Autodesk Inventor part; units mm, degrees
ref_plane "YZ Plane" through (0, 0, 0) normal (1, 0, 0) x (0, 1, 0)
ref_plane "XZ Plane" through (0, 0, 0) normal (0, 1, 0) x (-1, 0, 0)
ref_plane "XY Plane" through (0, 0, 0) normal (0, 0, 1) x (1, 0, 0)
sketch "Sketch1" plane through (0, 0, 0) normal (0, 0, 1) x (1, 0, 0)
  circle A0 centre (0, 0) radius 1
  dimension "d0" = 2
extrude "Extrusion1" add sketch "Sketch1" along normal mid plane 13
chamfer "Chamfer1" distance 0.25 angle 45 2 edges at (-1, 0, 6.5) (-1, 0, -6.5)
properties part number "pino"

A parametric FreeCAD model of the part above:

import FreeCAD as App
import Part
import Sketcher

V = App.Vector
Q = App.Units.Quantity


def edges_at(feature, points):
    """Names of the edges that pass closest to the given points."""
    edges = feature.Shape.Edges
    near = lambda p: min(range(len(edges)), key=lambda i: edges[i].distToShape(Part.Vertex(*p))[0])
    return sorted({f"Edge{near(p) + 1}" for p in points})

doc = App.newDocument("Part")
body = doc.addObject("PartDesign::Body", "Body")

# Sketch on XY plane
sketch1 = body.newObject("Sketcher::SketchObject", "Sketch")
sketch1.AttachmentSupport = (doc.getObject("XY_Plane"), [""])
sketch1.MapMode = "FlatFace"
sketch1.addGeometry(Part.Circle(V(0, 0, 0), V(0, 0, 1), 1), False)
sketch1.addConstraint(Sketcher.Constraint("Coincident", 0, 3, -1, 1))
sketch1.addConstraint(Sketcher.Constraint("Diameter", 0, Q("2 mm")))
pad1 = body.newObject("PartDesign::Pad", "Pad")
pad1.Profile = sketch1
pad1.Length = 13
pad1.Midplane = True
doc.recompute()

chamfer = body.newObject("PartDesign::Chamfer", "Chamfer")
chamfer.Base = (pad1, edges_at(pad1, [(-1, 0, 6.5), (-1, 0, -6.5)]))
chamfer.Size = 0.25

doc.recompute()
